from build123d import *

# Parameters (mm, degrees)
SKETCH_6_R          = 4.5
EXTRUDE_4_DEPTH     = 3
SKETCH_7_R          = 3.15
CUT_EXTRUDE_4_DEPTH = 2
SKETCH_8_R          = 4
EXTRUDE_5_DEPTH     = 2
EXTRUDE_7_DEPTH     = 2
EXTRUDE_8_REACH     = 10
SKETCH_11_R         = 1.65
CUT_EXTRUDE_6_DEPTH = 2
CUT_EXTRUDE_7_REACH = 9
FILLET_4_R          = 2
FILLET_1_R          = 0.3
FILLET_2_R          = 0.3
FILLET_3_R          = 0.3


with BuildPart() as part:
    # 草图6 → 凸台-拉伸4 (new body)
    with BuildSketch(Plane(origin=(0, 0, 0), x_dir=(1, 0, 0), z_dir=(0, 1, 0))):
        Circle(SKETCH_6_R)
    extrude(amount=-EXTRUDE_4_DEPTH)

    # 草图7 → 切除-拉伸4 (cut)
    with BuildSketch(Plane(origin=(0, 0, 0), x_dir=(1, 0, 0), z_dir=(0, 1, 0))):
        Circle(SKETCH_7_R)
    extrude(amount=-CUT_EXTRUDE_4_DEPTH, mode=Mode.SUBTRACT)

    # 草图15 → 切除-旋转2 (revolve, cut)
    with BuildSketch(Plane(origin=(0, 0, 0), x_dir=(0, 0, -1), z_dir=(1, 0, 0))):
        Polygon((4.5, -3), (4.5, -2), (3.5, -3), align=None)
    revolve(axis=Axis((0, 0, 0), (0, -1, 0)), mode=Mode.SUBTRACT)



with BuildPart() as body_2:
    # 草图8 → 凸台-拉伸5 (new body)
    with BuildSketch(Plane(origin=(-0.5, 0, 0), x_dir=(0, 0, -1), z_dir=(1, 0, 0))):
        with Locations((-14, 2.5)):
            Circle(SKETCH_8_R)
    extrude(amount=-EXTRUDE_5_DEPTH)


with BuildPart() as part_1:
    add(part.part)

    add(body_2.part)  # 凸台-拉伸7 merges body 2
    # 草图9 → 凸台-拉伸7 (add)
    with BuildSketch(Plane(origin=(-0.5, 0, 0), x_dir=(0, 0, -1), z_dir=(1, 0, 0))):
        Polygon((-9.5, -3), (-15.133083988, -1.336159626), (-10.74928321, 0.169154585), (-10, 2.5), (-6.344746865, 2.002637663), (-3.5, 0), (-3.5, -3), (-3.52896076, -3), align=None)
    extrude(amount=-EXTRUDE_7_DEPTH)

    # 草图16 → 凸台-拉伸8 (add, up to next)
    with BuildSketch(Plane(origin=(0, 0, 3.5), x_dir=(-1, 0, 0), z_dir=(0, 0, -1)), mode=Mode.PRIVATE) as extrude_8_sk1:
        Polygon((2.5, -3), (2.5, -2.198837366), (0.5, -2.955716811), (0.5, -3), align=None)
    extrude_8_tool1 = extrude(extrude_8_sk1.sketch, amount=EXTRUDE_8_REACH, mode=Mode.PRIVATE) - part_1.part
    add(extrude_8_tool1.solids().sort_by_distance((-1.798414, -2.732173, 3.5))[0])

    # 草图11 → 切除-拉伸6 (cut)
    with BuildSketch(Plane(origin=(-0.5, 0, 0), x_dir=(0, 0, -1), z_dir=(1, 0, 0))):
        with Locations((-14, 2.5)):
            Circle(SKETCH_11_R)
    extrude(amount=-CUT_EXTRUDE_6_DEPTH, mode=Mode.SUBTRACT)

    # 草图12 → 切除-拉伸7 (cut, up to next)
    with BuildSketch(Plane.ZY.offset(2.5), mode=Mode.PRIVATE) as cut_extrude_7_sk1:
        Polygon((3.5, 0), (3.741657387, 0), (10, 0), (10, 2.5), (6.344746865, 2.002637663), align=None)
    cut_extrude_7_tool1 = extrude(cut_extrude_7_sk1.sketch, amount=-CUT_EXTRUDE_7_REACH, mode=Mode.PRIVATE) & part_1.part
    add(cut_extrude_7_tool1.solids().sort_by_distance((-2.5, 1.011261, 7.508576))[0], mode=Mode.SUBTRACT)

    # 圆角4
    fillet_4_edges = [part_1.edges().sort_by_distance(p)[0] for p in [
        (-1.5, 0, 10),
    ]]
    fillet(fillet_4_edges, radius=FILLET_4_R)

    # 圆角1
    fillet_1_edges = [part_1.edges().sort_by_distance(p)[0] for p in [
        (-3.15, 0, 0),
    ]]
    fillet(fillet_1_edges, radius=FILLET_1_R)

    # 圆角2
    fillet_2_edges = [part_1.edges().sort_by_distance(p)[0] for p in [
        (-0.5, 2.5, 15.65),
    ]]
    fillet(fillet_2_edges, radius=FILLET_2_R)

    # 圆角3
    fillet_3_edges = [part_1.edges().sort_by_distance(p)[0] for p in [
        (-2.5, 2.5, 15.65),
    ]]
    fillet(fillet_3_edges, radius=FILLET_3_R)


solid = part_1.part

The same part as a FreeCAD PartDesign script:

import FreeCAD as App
import Part
import Sketcher
from FreeCAD import Vector
Q = App.Units.Quantity


def edges_at(feature, points):
    """Names of the edges that pass closest to the given points."""
    edges = feature.Shape.Edges
    near = lambda p: min(range(len(edges)), key=lambda i: edges[i].distToShape(Part.Vertex(*p))[0])
    return sorted({f"Edge{near(p) + 1}" for p in points})


def add_polygon(sketch, points):
    """Adds a closed chain of lines whose ends are joined by coincident constraints."""
    first, n = sketch.GeometryCount, len(points)
    for a, b in zip(points, points[1:] + points[:1]):
        sketch.addGeometry(Part.LineSegment(App.Vector(*a, 0), App.Vector(*b, 0)), False)
    for i in range(n):
        sketch.addConstraint(Sketcher.Constraint("Coincident", first + i, 2, first + (i + 1) % n, 1))

doc = App.newDocument("Part")
body = doc.addObject("PartDesign::Body", "Body")

# Sketch on XZ plane
sketch1 = doc.addObject("Sketcher::SketchObject", "Sketch")
body.addObject(sketch1)
sketch1.AttachmentSupport = (doc.XZ_Plane, [""])
sketch1.MapMode = "FlatFace"
sketch1.addGeometry(Part.Circle(Vector(0, 0, 0), Vector(0, 0, 1), 4.5), False)
sketch1.addConstraint([
    Sketcher.Constraint("Coincident", 0, 3, -1, 1),
    Sketcher.Constraint("Diameter", 0, Q("9 mm")),
])
pad1 = doc.addObject("PartDesign::Pad", "Pad")
body.addObject(pad1)
pad1.Profile = sketch1
pad1.Length = 3

# Sketch on XZ plane
sketch2 = doc.addObject("Sketcher::SketchObject", "Sketch001")
body.addObject(sketch2)
sketch2.AttachmentSupport = (doc.XZ_Plane, [""])
sketch2.MapMode = "FlatFace"
sketch2.addGeometry(Part.Circle(Vector(0, 0, 0), Vector(0, 0, 1), 3.15), False)
sketch2.addConstraint([
    Sketcher.Constraint("Coincident", 0, 3, -1, 1),
    Sketcher.Constraint("Diameter", 0, Q("6.3 mm")),
])
pocket1 = doc.addObject("PartDesign::Pocket", "Pocket")
body.addObject(pocket1)
pocket1.Profile = sketch2
pocket1.Length = 2
pocket1.Reversed = True

# Sketch on YZ plane
sketch3 = doc.addObject("Sketcher::SketchObject", "Sketch002")
body.addObject(sketch3)
sketch3.AttachmentSupport = (doc.YZ_Plane, [""])
sketch3.MapMode = "FlatFace"
add_polygon(sketch3, [(-3, -4.5), (-2, -4.5), (-3, -3.5)])  # lines 0-2
sketch3.addConstraint([
    Sketcher.Constraint("Horizontal", 0),
    Sketcher.Constraint("Vertical", 2),
    Sketcher.Constraint("Equal", 0, 2),
    Sketcher.Constraint("DistanceX", 0, 1, 0, 2, Q("1 mm")),
    Sketcher.Constraint("DistanceX", 0, 2, -1, 1, Q("2 mm")),
    Sketcher.Constraint("DistanceY", 0, 2, -1, 1, Q("4.5 mm")),
])
groove = doc.addObject("PartDesign::Groove", "Groove")
body.addObject(groove)
groove.Profile = sketch3
groove.ReferenceAxis = (sketch3, ["H_Axis"])
groove.Angle = 360
body2 = doc.addObject("PartDesign::Body", "Body001")

# Sketch on YZ plane
sketch4 = doc.addObject("Sketcher::SketchObject", "Sketch003")
body2.addObject(sketch4)
sketch4.AttachmentSupport = (doc.getObject("YZ_Plane001"), [""])
sketch4.MapMode = "FlatFace"
sketch4.AttachmentOffset = App.Placement(Vector(0, 0, -0.5), App.Rotation())
sketch4.addGeometry(Part.Circle(Vector(2.5, 14, 0), Vector(0, 0, 1), 4), False)
sketch4.addConstraint([
    Sketcher.Constraint("Diameter", 0, Q("8 mm")),
    Sketcher.Constraint("DistanceY", -1, 1, 0, 3, Q("14 mm")),
    Sketcher.Constraint("DistanceX", -1, 1, 0, 3, Q("2.5 mm")),
])
pad2 = doc.addObject("PartDesign::Pad", "Pad001")
body2.addObject(pad2)
pad2.Profile = sketch4
pad2.Length = 2
pad2.Reversed = True
body.AllowCompound = True
doc.recompute()

boolean = doc.addObject("PartDesign::Boolean", "Boolean")
body.addObject(boolean)
boolean.Type = "Fuse"
boolean.addObjects([body2])

# Sketch on YZ plane
sketch5 = doc.addObject("Sketcher::SketchObject", "Sketch004")
body.addObject(sketch5)
sketch5.AttachmentSupport = (doc.YZ_Plane, [""])
sketch5.MapMode = "FlatFace"
sketch5.AttachmentOffset = App.Placement(Vector(0, 0, -0.5), App.Rotation())
add_polygon(sketch5, [(-1.33616, 15.133084), (-3, 9.5), (-3, 3.5), (0, 3.5), (2.002638, 6.344747), (2.5, 10), (0.169155, 10.749283)])  # lines 0-6
sketch5.addConstraint([
    Sketcher.Constraint("Vertical", 1),
    Sketcher.Constraint("Horizontal", 2),
    Sketcher.Constraint("PointOnObject", 2, 2, -2),
    Sketcher.Constraint("DistanceX", 2, 1, 2, 2, Q("3 mm")),
    Sketcher.Constraint("DistanceY", 1, 2, 1, 1, Q("6 mm")),
    Sketcher.Constraint("DistanceY", -1, 1, 4, 2, Q("10 mm")),
    Sketcher.Constraint("DistanceY", -1, 1, 0, 2, Q("9.5 mm")),
    Sketcher.Constraint("DistanceX", -1, 1, 4, 2, Q("2.5 mm")),
    Sketcher.Constraint("DistanceY", 5, 2, 6, 2, Q("4.383801 mm")),
    Sketcher.Constraint("Distance", 0, Q("5.87367 mm")),
    Sketcher.Constraint("Distance", 5, Q("2.448319 mm")),
    Sketcher.Constraint("Distance", 6, Q("4.635049 mm")),
    Sketcher.Constraint("Distance", 3, Q("3.478957 mm")),
    Sketcher.Constraint("Distance", 4, Q("3.688935 mm")),
])
pad3 = doc.addObject("PartDesign::Pad", "Pad002")
body.addObject(pad3)
pad3.Profile = sketch5
pad3.Length = 2
pad3.Reversed = True

# Sketch on XY plane
sketch6 = doc.addObject("Sketcher::SketchObject", "Sketch005")
body.addObject(sketch6)
sketch6.AttachmentSupport = (doc.XY_Plane, [""])
sketch6.MapMode = "FlatFace"
sketch6.AttachmentOffset = App.Placement(Vector(0, 0, 3.5), App.Rotation())
add_polygon(sketch6, [(-2.5, -3), (-2.5, -2.198837), (-0.5, -2.955717), (-0.5, -3)])  # lines 0-3
sketch6.addConstraint([
    Sketcher.Constraint("Vertical", 0),
    Sketcher.Constraint("Vertical", 2),
    Sketcher.Constraint("Horizontal", 3),
    Sketcher.Constraint("DistanceX", 3, 2, 3, 1, Q("2 mm")),
    Sketcher.Constraint("DistanceY", 2, 2, -1, 1, Q("3 mm")),
    Sketcher.Constraint("DistanceX", 0, 2, -1, 1, Q("2.5 mm")),
    Sketcher.Constraint("DistanceY", 0, 1, 0, 2, Q("0.801163 mm")),
    Sketcher.Constraint("DistanceY", 2, 2, 2, 1, Q("0.044283 mm")),
])
pad4 = doc.addObject("PartDesign::Pad", "Pad003")
body.addObject(pad4)
pad4.Profile = sketch6
pad4.Length = 1.05051
pad4.Reversed = True

# Sketch on YZ plane
sketch7 = doc.addObject("Sketcher::SketchObject", "Sketch006")
body.addObject(sketch7)
sketch7.AttachmentSupport = (doc.YZ_Plane, [""])
sketch7.MapMode = "FlatFace"
sketch7.AttachmentOffset = App.Placement(Vector(0, 0, -0.5), App.Rotation())
sketch7.addGeometry(Part.Circle(Vector(2.5, 14, 0), Vector(0, 0, 1), 1.65), False)
sketch7.addConstraint([
    Sketcher.Constraint("Diameter", 0, Q("3.3 mm")),
    Sketcher.Constraint("DistanceY", -1, 1, 0, 3, Q("14 mm")),
    Sketcher.Constraint("DistanceX", -1, 1, 0, 3, Q("2.5 mm")),
])
pocket2 = doc.addObject("PartDesign::Pocket", "Pocket001")
body.addObject(pocket2)
pocket2.Profile = sketch7
pocket2.Length = 2

# Sketch on YZ plane
sketch8 = doc.addObject("Sketcher::SketchObject", "Sketch007")
body.addObject(sketch8)
sketch8.AttachmentSupport = (doc.YZ_Plane, [""])
sketch8.MapMode = "FlatFace"
sketch8.AttachmentOffset = App.Placement(Vector(0, 0, -2.5), App.Rotation())
add_polygon(sketch8, [(0, 3.5), (0, 10), (2.5, 10), (2.002638, 6.344747)])  # lines 0-3
sketch8.addConstraint([
    Sketcher.Constraint("Vertical", 0),
    Sketcher.Constraint("Horizontal", 1),
    Sketcher.Constraint("PointOnObject", 0, 2, -2),
    Sketcher.Constraint("DistanceX", 1, 1, 1, 2, Q("2.5 mm")),
    Sketcher.Constraint("DistanceY", 0, 1, 0, 2, Q("6.5 mm")),
    Sketcher.Constraint("DistanceY", -1, 1, 0, 2, Q("10 mm")),
    Sketcher.Constraint("Distance", 2, Q("3.688935 mm")),
    Sketcher.Constraint("Distance", 3, Q("3.478957 mm")),
])
pocket3 = doc.addObject("PartDesign::Pocket", "Pocket002")
body.addObject(pocket3)
pocket3.Profile = sketch8
pocket3.Type = "UpToFirst"
pocket3.Reversed = True
doc.recompute()

fillet = doc.addObject("PartDesign::Fillet", "Fillet")
body.addObject(fillet)
fillet.Base = (pocket3, edges_at(pocket3, [(-1.5, 0, 10)]))
fillet.Radius = 2
doc.recompute()

fillet2 = doc.addObject("PartDesign::Fillet", "Fillet001")
body.addObject(fillet2)
fillet2.Base = (fillet, edges_at(fillet, [(-3.15, 0, 0)]))
fillet2.Radius = 0.3
doc.recompute()

fillet3 = doc.addObject("PartDesign::Fillet", "Fillet002")
body.addObject(fillet3)
fillet3.Base = (fillet2, edges_at(fillet2, [(-0.5, 2.5, 15.65)]))
fillet3.Radius = 0.3
doc.recompute()

fillet4 = doc.addObject("PartDesign::Fillet", "Fillet003")
body.addObject(fillet4)
fillet4.Base = (fillet3, edges_at(fillet3, [(-2.5, 2.5, 15.65)]))
fillet4.Radius = 0.3

doc.recompute()
